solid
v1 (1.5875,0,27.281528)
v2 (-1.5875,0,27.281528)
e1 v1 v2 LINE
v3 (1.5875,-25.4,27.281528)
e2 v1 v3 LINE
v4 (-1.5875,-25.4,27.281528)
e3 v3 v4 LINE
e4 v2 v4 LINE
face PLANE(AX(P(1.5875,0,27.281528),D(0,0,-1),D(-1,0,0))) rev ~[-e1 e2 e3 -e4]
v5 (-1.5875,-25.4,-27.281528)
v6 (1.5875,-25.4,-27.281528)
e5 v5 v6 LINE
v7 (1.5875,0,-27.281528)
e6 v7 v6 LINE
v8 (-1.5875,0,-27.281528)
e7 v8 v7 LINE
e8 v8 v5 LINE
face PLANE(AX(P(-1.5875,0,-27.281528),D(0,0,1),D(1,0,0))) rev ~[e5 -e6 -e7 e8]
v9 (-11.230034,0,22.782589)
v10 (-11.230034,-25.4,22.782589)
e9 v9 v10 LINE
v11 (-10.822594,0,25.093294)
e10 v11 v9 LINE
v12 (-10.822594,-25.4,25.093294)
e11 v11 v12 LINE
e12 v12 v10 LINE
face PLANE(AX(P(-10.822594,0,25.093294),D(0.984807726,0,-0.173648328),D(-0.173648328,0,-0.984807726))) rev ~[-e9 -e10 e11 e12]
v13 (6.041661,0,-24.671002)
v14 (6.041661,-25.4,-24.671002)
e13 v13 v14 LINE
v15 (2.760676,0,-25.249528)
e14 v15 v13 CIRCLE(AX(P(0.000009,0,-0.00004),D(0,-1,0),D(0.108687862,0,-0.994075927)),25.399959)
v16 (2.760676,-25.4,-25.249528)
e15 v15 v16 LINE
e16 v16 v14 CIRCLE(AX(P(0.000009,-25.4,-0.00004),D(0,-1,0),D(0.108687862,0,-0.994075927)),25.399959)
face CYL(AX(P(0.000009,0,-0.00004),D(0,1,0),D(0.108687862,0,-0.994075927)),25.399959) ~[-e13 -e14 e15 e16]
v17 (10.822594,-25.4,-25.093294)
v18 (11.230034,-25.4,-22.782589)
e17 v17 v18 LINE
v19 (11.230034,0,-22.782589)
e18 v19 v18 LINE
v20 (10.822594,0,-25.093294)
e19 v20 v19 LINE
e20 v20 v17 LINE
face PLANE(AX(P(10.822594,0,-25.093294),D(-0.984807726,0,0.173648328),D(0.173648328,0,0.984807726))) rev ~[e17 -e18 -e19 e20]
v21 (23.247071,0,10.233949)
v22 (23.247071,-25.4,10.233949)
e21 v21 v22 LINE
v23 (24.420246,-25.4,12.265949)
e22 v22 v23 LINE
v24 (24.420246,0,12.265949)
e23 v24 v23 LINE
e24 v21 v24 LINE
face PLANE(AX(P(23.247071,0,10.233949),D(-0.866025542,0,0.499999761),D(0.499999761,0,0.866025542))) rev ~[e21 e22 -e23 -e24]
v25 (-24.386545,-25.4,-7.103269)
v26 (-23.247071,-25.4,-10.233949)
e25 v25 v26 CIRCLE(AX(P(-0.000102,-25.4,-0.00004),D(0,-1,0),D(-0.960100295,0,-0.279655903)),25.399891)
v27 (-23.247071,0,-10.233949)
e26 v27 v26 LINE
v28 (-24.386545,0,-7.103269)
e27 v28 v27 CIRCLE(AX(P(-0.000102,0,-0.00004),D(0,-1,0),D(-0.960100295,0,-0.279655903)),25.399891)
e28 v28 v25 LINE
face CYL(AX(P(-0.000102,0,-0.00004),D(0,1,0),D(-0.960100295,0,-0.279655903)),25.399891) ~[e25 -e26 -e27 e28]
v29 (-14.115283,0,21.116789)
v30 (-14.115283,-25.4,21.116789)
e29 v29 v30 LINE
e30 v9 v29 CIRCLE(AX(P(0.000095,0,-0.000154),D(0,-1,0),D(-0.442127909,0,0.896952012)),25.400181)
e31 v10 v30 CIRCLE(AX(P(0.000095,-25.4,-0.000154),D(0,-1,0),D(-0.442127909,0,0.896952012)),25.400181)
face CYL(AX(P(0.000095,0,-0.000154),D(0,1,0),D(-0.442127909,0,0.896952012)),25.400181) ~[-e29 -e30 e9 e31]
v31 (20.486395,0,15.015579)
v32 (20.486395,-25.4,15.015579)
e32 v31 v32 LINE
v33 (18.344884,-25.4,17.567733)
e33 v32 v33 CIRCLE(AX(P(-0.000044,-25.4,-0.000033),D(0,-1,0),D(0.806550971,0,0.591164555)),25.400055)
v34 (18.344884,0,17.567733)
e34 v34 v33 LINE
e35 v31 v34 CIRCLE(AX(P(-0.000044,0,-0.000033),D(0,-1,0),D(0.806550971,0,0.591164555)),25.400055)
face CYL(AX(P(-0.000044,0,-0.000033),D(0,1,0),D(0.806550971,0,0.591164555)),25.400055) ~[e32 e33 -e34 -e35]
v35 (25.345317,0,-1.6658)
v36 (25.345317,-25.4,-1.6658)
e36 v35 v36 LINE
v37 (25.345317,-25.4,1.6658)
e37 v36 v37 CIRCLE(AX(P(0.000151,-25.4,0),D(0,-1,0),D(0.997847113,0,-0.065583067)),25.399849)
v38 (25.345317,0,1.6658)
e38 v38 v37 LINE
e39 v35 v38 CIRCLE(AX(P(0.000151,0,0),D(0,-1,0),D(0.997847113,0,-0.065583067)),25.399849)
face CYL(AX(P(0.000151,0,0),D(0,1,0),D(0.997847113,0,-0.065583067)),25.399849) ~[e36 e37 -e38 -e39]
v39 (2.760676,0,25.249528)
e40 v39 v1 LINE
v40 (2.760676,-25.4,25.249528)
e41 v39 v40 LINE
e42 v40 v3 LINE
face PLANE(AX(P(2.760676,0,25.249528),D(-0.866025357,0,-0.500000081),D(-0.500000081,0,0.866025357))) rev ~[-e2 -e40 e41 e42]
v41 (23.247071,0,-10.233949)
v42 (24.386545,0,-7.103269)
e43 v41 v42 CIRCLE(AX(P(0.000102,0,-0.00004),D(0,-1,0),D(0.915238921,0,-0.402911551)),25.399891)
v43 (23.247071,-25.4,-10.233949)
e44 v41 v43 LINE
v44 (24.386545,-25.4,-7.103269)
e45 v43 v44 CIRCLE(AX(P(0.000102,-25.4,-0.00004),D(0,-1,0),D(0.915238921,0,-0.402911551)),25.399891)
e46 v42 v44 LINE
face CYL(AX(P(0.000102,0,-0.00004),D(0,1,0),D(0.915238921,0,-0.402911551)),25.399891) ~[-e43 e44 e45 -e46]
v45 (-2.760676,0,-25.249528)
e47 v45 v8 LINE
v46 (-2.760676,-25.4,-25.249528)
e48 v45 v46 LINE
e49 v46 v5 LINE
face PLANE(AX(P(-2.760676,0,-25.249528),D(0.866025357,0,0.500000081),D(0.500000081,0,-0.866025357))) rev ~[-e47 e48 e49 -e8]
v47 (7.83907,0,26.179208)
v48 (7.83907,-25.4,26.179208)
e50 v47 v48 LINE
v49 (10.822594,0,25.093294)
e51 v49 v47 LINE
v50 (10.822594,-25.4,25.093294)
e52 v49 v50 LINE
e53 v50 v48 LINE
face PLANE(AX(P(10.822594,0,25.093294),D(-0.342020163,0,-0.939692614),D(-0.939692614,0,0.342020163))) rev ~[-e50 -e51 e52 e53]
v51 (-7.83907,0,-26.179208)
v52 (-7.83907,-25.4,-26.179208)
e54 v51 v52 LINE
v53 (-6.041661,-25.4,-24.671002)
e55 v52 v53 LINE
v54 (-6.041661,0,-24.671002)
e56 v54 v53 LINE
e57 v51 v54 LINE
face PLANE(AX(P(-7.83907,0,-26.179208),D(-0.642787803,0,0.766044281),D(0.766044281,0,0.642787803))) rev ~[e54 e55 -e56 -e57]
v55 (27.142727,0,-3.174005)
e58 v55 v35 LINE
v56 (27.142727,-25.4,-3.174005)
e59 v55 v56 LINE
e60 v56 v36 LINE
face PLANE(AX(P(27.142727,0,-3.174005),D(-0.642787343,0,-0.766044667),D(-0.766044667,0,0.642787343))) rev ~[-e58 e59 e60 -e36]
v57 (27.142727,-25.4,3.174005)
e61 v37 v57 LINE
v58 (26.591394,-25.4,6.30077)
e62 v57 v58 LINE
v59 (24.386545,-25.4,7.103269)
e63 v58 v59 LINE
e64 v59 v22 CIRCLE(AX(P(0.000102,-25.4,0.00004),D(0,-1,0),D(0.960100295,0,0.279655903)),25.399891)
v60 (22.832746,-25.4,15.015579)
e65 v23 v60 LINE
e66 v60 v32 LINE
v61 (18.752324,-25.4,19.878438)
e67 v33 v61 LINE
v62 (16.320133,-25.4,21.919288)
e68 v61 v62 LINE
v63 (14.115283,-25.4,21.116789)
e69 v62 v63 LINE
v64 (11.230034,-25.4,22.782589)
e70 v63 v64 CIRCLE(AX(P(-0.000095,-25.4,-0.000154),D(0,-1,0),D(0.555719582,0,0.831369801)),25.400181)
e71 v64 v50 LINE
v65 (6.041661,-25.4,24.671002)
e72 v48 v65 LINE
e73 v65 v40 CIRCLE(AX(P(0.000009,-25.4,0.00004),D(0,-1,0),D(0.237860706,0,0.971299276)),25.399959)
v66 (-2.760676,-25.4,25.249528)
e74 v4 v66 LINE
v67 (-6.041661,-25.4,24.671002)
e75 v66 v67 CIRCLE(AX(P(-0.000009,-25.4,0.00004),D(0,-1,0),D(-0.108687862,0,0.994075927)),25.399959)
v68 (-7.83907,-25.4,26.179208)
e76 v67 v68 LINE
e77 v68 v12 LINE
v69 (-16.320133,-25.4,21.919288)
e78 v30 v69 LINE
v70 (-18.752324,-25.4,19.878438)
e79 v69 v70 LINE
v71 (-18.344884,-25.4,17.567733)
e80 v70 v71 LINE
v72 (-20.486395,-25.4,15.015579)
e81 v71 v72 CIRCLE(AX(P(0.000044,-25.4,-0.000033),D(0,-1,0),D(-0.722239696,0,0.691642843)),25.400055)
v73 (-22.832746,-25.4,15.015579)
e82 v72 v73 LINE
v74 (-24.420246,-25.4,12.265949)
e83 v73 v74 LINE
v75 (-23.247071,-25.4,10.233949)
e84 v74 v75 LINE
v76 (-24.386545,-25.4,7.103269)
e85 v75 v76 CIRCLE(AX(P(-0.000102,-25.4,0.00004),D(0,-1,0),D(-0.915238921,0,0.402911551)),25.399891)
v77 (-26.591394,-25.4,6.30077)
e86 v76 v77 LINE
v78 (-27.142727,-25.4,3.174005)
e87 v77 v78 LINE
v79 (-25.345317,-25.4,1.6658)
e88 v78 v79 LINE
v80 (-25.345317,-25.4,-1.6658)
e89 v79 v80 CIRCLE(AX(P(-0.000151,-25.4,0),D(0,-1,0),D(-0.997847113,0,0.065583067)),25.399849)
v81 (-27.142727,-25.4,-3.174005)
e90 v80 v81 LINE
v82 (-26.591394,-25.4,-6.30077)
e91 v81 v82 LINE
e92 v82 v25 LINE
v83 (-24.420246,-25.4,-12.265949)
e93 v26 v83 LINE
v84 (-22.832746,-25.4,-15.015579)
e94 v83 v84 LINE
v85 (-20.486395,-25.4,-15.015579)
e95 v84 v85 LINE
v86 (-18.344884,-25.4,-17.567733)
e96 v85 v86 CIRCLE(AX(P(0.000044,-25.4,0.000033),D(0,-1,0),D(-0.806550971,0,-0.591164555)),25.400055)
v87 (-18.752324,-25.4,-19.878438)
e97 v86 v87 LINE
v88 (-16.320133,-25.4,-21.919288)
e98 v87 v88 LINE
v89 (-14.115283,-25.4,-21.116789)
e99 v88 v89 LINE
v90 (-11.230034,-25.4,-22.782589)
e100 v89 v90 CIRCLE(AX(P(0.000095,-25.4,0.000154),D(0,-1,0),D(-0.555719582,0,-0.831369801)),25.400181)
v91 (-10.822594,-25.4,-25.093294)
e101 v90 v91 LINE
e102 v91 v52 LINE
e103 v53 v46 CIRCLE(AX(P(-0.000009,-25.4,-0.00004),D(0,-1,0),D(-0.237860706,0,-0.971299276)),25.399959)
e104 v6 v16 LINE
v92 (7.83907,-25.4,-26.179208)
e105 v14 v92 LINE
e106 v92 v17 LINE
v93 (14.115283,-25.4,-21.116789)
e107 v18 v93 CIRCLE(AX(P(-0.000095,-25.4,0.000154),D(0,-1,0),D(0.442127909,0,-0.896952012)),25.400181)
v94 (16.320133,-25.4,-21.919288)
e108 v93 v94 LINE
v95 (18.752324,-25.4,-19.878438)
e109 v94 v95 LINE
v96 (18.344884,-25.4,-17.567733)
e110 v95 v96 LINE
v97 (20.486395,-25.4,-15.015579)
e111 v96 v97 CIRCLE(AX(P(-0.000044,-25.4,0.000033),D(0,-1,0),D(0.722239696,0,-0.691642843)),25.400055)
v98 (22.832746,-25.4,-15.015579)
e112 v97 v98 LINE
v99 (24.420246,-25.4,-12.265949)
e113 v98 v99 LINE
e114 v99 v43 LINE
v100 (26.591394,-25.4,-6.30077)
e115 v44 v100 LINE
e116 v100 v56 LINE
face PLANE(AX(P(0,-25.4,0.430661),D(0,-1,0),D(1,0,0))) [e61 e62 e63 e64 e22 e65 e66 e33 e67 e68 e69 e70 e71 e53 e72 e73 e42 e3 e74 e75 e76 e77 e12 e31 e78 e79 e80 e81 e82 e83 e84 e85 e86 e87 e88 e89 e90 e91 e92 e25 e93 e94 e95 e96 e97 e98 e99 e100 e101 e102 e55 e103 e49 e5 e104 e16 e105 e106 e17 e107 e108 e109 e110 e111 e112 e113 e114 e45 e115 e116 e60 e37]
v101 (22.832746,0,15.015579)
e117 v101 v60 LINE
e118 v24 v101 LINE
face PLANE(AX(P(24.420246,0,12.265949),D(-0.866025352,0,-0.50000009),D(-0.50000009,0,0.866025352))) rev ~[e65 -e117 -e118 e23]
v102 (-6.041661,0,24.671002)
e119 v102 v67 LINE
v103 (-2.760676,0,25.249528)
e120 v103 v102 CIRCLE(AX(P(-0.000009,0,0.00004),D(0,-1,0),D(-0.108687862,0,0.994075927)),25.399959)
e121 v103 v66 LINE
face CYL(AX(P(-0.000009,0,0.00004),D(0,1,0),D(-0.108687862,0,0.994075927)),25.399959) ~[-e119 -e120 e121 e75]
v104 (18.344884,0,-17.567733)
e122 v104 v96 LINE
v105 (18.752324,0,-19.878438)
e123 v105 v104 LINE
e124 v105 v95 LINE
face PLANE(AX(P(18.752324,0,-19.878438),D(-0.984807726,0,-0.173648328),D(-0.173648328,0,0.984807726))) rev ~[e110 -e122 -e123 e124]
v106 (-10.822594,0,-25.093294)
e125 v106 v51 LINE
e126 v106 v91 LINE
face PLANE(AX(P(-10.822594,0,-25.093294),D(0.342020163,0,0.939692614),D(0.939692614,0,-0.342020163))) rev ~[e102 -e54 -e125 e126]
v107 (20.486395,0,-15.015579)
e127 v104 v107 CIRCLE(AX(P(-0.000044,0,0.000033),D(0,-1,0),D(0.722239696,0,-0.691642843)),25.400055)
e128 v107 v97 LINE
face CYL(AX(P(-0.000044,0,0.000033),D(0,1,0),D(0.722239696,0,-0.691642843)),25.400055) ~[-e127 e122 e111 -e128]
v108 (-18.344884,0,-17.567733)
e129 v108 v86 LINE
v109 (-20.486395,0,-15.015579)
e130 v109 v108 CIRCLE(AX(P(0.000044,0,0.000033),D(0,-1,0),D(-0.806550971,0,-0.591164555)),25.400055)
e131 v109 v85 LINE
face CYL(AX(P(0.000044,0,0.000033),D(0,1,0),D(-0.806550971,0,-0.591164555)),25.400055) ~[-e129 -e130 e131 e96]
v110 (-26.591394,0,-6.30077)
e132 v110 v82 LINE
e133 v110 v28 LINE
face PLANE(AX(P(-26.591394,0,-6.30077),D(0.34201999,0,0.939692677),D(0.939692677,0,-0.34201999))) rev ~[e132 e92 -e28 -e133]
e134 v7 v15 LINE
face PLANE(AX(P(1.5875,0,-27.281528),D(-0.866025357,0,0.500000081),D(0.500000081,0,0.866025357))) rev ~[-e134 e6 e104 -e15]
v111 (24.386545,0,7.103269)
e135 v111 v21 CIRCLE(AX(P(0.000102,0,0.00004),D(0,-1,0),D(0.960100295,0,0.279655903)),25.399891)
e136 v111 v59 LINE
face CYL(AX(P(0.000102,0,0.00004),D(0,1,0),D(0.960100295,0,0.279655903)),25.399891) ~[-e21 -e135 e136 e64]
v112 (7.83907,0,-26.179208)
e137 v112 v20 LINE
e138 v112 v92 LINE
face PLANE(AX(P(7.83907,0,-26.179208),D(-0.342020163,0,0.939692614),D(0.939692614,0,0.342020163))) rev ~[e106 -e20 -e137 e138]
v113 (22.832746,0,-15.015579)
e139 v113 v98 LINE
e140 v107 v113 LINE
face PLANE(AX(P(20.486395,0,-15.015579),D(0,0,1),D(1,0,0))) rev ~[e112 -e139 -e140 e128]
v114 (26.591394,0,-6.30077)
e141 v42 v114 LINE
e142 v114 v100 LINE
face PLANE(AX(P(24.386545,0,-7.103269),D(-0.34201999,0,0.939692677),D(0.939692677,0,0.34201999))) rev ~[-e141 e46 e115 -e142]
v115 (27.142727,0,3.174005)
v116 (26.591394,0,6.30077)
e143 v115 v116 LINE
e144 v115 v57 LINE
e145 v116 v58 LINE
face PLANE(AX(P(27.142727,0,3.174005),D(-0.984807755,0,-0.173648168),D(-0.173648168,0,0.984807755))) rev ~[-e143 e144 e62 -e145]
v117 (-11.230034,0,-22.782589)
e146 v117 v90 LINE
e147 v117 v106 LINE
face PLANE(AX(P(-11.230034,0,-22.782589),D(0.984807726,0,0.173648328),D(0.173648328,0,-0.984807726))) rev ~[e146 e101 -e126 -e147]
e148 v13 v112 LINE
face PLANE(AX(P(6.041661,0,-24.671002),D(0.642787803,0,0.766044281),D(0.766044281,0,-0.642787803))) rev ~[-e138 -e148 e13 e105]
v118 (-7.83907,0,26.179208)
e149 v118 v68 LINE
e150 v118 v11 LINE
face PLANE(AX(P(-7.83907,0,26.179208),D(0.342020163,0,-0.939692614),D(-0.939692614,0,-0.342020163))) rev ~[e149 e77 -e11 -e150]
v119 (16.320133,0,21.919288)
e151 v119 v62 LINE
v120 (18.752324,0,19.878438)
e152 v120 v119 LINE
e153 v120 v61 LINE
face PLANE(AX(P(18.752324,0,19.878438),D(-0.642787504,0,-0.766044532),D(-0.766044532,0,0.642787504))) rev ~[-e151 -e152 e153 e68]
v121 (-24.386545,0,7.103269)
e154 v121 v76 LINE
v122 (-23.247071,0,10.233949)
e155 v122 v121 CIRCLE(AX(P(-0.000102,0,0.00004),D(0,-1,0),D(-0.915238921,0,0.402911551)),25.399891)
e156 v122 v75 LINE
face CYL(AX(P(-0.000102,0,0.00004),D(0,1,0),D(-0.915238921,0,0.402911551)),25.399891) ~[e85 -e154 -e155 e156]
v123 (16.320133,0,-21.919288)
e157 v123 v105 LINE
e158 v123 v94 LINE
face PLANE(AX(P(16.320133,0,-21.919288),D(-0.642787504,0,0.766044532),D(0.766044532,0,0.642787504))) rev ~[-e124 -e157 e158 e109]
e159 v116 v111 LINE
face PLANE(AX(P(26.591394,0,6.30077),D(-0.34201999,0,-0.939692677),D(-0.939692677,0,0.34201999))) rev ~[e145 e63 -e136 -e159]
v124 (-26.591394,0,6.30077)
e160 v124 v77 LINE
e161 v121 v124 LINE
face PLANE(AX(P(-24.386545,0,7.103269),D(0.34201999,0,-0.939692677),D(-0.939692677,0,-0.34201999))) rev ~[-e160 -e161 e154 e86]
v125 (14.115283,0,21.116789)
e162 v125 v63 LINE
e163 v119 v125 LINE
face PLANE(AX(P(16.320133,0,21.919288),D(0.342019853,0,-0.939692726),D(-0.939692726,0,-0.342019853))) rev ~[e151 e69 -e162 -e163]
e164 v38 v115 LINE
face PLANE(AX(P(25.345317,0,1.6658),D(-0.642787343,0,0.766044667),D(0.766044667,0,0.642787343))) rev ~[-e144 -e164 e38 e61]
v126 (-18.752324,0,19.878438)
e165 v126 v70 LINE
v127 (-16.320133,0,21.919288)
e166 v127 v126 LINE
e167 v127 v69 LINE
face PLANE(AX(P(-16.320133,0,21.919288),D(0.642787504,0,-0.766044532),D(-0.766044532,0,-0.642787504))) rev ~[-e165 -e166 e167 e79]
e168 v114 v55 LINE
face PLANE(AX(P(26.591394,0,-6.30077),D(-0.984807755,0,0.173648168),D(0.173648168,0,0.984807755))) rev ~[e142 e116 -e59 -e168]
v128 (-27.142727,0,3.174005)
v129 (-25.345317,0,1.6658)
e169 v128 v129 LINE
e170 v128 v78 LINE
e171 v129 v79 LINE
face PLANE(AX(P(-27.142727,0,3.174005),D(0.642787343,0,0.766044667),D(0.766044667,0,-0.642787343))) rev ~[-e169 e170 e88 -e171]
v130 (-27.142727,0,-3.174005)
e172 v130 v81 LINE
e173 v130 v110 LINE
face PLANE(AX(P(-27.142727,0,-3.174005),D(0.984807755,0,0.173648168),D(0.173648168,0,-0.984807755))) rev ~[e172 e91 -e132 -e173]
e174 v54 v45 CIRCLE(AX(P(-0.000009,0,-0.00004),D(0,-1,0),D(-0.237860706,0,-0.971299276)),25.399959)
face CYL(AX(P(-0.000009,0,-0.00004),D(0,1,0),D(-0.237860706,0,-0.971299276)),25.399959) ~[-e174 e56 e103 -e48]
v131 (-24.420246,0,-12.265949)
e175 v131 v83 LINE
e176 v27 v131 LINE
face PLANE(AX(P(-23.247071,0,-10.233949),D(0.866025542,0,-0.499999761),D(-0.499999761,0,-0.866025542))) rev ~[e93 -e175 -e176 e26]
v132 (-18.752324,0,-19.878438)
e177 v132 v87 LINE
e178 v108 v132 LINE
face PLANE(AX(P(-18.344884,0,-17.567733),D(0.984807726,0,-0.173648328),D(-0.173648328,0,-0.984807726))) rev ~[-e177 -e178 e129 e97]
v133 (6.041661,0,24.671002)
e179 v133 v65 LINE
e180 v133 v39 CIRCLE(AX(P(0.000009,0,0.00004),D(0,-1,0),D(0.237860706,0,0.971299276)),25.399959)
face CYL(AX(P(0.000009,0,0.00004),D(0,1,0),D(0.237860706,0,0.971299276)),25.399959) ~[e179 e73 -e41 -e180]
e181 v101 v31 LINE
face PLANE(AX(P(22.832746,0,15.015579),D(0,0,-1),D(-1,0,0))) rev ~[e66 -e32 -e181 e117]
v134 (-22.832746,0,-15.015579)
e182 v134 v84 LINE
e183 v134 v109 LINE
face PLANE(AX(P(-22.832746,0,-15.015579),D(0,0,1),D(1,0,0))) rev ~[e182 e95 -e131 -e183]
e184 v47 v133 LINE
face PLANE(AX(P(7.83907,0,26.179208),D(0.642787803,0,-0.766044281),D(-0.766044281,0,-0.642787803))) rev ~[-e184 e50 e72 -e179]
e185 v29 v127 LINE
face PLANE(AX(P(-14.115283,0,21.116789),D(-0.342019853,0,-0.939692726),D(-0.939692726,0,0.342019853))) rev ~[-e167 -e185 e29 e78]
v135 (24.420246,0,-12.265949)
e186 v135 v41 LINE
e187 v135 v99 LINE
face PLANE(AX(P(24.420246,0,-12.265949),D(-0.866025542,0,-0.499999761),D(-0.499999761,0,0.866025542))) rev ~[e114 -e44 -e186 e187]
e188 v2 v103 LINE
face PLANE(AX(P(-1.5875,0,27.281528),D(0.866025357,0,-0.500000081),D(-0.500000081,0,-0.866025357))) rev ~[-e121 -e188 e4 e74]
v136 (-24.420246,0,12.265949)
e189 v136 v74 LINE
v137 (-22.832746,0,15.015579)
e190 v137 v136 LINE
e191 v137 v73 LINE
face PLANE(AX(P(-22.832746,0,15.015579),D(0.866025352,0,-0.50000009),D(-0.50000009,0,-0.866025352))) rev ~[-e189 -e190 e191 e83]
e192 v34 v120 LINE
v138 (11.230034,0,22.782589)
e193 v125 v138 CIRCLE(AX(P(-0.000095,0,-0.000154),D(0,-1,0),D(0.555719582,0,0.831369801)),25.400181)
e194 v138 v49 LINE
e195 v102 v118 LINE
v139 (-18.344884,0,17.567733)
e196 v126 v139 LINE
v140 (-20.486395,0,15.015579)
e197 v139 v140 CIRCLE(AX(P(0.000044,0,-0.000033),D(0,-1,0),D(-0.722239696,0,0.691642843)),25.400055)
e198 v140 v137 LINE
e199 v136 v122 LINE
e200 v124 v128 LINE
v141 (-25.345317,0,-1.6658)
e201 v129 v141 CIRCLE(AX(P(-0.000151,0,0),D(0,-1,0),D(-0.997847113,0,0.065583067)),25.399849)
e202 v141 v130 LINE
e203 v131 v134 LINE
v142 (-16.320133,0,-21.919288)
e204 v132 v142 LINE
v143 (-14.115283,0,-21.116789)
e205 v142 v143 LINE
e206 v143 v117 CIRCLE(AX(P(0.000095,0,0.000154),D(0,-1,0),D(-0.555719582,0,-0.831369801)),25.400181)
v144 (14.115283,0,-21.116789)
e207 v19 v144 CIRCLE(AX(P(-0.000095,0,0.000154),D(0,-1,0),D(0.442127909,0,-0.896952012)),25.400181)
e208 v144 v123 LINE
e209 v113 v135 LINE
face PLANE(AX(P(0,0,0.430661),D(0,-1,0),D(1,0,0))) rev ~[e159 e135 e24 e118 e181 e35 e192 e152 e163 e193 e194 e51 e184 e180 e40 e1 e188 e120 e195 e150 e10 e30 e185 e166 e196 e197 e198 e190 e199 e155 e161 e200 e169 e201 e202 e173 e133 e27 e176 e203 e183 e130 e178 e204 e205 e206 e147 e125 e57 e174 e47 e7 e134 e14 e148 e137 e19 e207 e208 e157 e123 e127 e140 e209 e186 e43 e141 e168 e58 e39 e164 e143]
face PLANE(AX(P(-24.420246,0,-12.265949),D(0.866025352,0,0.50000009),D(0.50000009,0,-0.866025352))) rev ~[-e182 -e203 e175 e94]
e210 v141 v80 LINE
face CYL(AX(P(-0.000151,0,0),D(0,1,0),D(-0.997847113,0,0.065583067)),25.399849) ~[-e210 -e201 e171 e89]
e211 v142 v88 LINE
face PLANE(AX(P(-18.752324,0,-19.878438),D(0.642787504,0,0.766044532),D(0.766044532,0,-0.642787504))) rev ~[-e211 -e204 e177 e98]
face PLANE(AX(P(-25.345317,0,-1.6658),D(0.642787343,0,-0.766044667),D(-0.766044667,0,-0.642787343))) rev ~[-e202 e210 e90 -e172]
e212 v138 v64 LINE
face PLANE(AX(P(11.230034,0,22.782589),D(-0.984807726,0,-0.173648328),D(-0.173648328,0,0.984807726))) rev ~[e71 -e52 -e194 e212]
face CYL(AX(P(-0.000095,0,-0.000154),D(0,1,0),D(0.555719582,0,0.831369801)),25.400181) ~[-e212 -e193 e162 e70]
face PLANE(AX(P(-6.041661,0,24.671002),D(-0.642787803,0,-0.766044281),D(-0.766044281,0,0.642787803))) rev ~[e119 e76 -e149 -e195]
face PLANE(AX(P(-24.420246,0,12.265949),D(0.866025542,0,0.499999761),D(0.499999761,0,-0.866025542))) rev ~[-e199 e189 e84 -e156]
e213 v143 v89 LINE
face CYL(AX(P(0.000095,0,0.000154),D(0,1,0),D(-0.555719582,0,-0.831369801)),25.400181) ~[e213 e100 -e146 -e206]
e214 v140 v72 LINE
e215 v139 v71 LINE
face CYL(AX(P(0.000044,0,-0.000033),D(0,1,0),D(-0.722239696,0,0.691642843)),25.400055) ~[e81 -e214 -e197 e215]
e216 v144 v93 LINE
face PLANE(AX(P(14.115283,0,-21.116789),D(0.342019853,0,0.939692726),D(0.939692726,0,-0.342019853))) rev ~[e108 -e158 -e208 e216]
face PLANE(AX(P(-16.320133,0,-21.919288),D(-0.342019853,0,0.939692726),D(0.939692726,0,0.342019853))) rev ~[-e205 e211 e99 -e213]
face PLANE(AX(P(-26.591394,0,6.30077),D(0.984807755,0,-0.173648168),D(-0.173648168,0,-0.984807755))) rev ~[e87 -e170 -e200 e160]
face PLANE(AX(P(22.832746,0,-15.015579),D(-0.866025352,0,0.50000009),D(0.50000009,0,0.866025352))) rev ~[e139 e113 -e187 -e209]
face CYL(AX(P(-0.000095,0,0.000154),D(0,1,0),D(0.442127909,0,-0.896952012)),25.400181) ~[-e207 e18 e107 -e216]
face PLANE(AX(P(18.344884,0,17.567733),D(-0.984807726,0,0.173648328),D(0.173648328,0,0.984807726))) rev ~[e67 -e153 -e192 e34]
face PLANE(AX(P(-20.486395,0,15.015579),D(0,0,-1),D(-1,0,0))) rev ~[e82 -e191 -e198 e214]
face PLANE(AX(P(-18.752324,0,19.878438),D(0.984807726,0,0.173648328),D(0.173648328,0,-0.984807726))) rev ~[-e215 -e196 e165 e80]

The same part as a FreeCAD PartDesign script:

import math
import FreeCAD as App
import Part
import Sketcher
from FreeCAD import Vector
Q = App.Units.Quantity

doc = App.newDocument("Part")
body = doc.addObject("PartDesign::Body", "Body")

# Sketch on XZ plane
sketch1 = body.newObject("Sketcher::SketchObject", "Sketch")
sketch1.AttachmentSupport = (doc.getObject("XZ_Plane"), [""])
sketch1.MapMode = "FlatFace"
sketch1.addGeometry([
    Part.LineSegment(Vector(-1.5875, 27.281528, 0), Vector(-2.760676, 25.249528, 0)),  # 0
    Part.ArcOfCircle(Part.Circle(Vector(-0.000009, 0.00004, 0), Vector(0, 0, 1), 25.399959), math.radians(96.239682), math.radians(103.760312)),  # 1
    Part.LineSegment(Vector(-6.041661, 24.671002, 0), Vector(-7.83907, 26.179208, 0)),  # 2
    Part.LineSegment(Vector(-7.83907, 26.179208, 0), Vector(-10.822594, 25.093294, 0)),  # 3
    Part.LineSegment(Vector(-10.822594, 25.093294, 0), Vector(-11.230034, 22.782589, 0)),  # 4
    Part.ArcOfCircle(Part.Circle(Vector(0.000095, -0.000154, 0), Vector(0, 0, 1), 25.400181), math.radians(116.239729), math.radians(123.760292)),  # 5
    Part.LineSegment(Vector(-14.115283, 21.116789, 0), Vector(-16.320133, 21.919288, 0)),  # 6
    Part.LineSegment(Vector(-16.320133, 21.919288, 0), Vector(-18.752324, 19.878438, 0)),  # 7
    Part.LineSegment(Vector(-18.752324, 19.878438, 0), Vector(-18.344884, 17.567733, 0)),  # 8
    Part.ArcOfCircle(Part.Circle(Vector(0.000044, -0.000033, 0), Vector(0, 0, 1), 25.400055), math.radians(136.239705), math.radians(143.760308)),  # 9
    Part.LineSegment(Vector(-20.486395, 15.015579, 0), Vector(-22.832746, 15.015579, 0)),  # 10
    Part.LineSegment(Vector(-22.832746, 15.015579, 0), Vector(-24.420246, 12.265949, 0)),  # 11
    Part.LineSegment(Vector(-24.420246, 12.265949, 0), Vector(-23.247071, 10.233949, 0)),  # 12
    Part.ArcOfCircle(Part.Circle(Vector(-0.000102, 0.00004, 0), Vector(0, 0, 1), 25.399891), math.radians(156.23968), math.radians(163.760331)),  # 13
    Part.LineSegment(Vector(-24.386545, 7.103269, 0), Vector(-26.591394, 6.30077, 0)),  # 14
    Part.LineSegment(Vector(-26.591394, 6.30077, 0), Vector(-27.142727, 3.174005, 0)),  # 15
    Part.LineSegment(Vector(-27.142727, 3.174005, 0), Vector(-25.345317, 1.6658, 0)),  # 16
    Part.ArcOfCircle(Part.Circle(Vector(-0.000151, 0, 0), Vector(0, 0, 1), 25.399849), math.radians(176.239668), math.radians(183.760332)),  # 17
    Part.LineSegment(Vector(-25.345317, -1.6658, 0), Vector(-27.142727, -3.174005, 0)),  # 18
    Part.LineSegment(Vector(-27.142727, -3.174005, 0), Vector(-26.591394, -6.30077, 0)),  # 19
    Part.LineSegment(Vector(-26.591394, -6.30077, 0), Vector(-24.386545, -7.103269, 0)),  # 20
    Part.ArcOfCircle(Part.Circle(Vector(-0.000102, -0.00004, 0), Vector(0, 0, 1), 25.399891), math.radians(-163.760331), math.radians(-156.23968)),  # 21
    Part.LineSegment(Vector(-23.247071, -10.233949, 0), Vector(-24.420246, -12.265949, 0)),  # 22
    Part.LineSegment(Vector(-24.420246, -12.265949, 0), Vector(-22.832746, -15.015579, 0)),  # 23
    Part.LineSegment(Vector(-22.832746, -15.015579, 0), Vector(-20.486395, -15.015579, 0)),  # 24
    Part.ArcOfCircle(Part.Circle(Vector(0.000044, 0.000033, 0), Vector(0, 0, 1), 25.400055), math.radians(-143.760308), math.radians(-136.239705)),  # 25
    Part.LineSegment(Vector(-18.344884, -17.567733, 0), Vector(-18.752324, -19.878438, 0)),  # 26
    Part.LineSegment(Vector(-18.752324, -19.878438, 0), Vector(-16.320133, -21.919288, 0)),  # 27
    Part.LineSegment(Vector(-16.320133, -21.919288, 0), Vector(-14.115283, -21.116789, 0)),  # 28
    Part.ArcOfCircle(Part.Circle(Vector(0.000095, 0.000154, 0), Vector(0, 0, 1), 25.400181), math.radians(-123.760292), math.radians(-116.239729)),  # 29
    Part.LineSegment(Vector(-11.230034, -22.782589, 0), Vector(-10.822594, -25.093294, 0)),  # 30
    Part.LineSegment(Vector(-10.822594, -25.093294, 0), Vector(-7.83907, -26.179208, 0)),  # 31
    Part.LineSegment(Vector(-7.83907, -26.179208, 0), Vector(-6.041661, -24.671002, 0)),  # 32
    Part.ArcOfCircle(Part.Circle(Vector(-0.000009, -0.00004, 0), Vector(0, 0, 1), 25.399959), math.radians(-103.760312), math.radians(-96.239682)),  # 33
    Part.LineSegment(Vector(-2.760676, -25.249528, 0), Vector(-1.5875, -27.281528, 0)),  # 34
    Part.LineSegment(Vector(-1.5875, -27.281528, 0), Vector(1.5875, -27.281528, 0)),  # 35
    Part.LineSegment(Vector(1.5875, -27.281528, 0), Vector(2.760676, -25.249528, 0)),  # 36
    Part.ArcOfCircle(Part.Circle(Vector(0.000009, -0.00004, 0), Vector(0, 0, 1), 25.399959), math.radians(-83.760318), math.radians(-76.239688)),  # 37
    Part.LineSegment(Vector(6.041661, -24.671002, 0), Vector(7.83907, -26.179208, 0)),  # 38
    Part.LineSegment(Vector(7.83907, -26.179208, 0), Vector(10.822594, -25.093294, 0)),  # 39
    Part.LineSegment(Vector(10.822594, -25.093294, 0), Vector(11.230034, -22.782589, 0)),  # 40
    Part.ArcOfCircle(Part.Circle(Vector(-0.000095, 0.000154, 0), Vector(0, 0, 1), 25.400181), math.radians(-63.760271), math.radians(-56.239708)),  # 41
    Part.LineSegment(Vector(14.115283, -21.116789, 0), Vector(16.320133, -21.919288, 0)),  # 42
    Part.LineSegment(Vector(16.320133, -21.919288, 0), Vector(18.752324, -19.878438, 0)),  # 43
    Part.LineSegment(Vector(18.752324, -19.878438, 0), Vector(18.344884, -17.567733, 0)),  # 44
    Part.ArcOfCircle(Part.Circle(Vector(-0.000044, 0.000033, 0), Vector(0, 0, 1), 25.400055), math.radians(-43.760295), math.radians(-36.239692)),  # 45
    Part.LineSegment(Vector(20.486395, -15.015579, 0), Vector(22.832746, -15.015579, 0)),  # 46
    Part.LineSegment(Vector(22.832746, -15.015579, 0), Vector(24.420246, -12.265949, 0)),  # 47
    Part.LineSegment(Vector(24.420246, -12.265949, 0), Vector(23.247071, -10.233949, 0)),  # 48
    Part.ArcOfCircle(Part.Circle(Vector(0.000102, -0.00004, 0), Vector(0, 0, 1), 25.399891), math.radians(-23.76032), math.radians(-16.239669)),  # 49
    Part.LineSegment(Vector(24.386545, -7.103269, 0), Vector(26.591394, -6.30077, 0)),  # 50
    Part.LineSegment(Vector(26.591394, -6.30077, 0), Vector(27.142727, -3.174005, 0)),  # 51
    Part.LineSegment(Vector(27.142727, -3.174005, 0), Vector(25.345317, -1.6658, 0)),  # 52
    Part.ArcOfCircle(Part.Circle(Vector(0.000151, 0, 0), Vector(0, 0, 1), 25.399849), math.radians(-3.760332), math.radians(3.760332)),  # 53
    Part.LineSegment(Vector(25.345317, 1.6658, 0), Vector(27.142727, 3.174005, 0)),  # 54
    Part.LineSegment(Vector(27.142727, 3.174005, 0), Vector(26.591394, 6.30077, 0)),  # 55
    Part.LineSegment(Vector(26.591394, 6.30077, 0), Vector(24.386545, 7.103269, 0)),  # 56
    Part.ArcOfCircle(Part.Circle(Vector(0.000102, 0.00004, 0), Vector(0, 0, 1), 25.399891), math.radians(16.239669), math.radians(23.76032)),  # 57
    Part.LineSegment(Vector(23.247071, 10.233949, 0), Vector(24.420246, 12.265949, 0)),  # 58
    Part.LineSegment(Vector(24.420246, 12.265949, 0), Vector(22.832746, 15.015579, 0)),  # 59
    Part.LineSegment(Vector(22.832746, 15.015579, 0), Vector(20.486395, 15.015579, 0)),  # 60
    Part.ArcOfCircle(Part.Circle(Vector(-0.000044, -0.000033, 0), Vector(0, 0, 1), 25.400055), math.radians(36.239692), math.radians(43.760295)),  # 61
    Part.LineSegment(Vector(18.344884, 17.567733, 0), Vector(18.752324, 19.878438, 0)),  # 62
    Part.LineSegment(Vector(18.752324, 19.878438, 0), Vector(16.320133, 21.919288, 0)),  # 63
    Part.LineSegment(Vector(16.320133, 21.919288, 0), Vector(14.115283, 21.116789, 0)),  # 64
    Part.ArcOfCircle(Part.Circle(Vector(-0.000095, -0.000154, 0), Vector(0, 0, 1), 25.400181), math.radians(56.239708), math.radians(63.760271)),  # 65
    Part.LineSegment(Vector(11.230034, 22.782589, 0), Vector(10.822594, 25.093294, 0)),  # 66
    Part.LineSegment(Vector(10.822594, 25.093294, 0), Vector(7.83907, 26.179208, 0)),  # 67
    Part.LineSegment(Vector(7.83907, 26.179208, 0), Vector(6.041661, 24.671002, 0)),  # 68
    Part.ArcOfCircle(Part.Circle(Vector(0.000009, 0.00004, 0), Vector(0, 0, 1), 25.399959), math.radians(76.239688), math.radians(83.760318)),  # 69
    Part.LineSegment(Vector(2.760676, 25.249528, 0), Vector(1.5875, 27.281528, 0)),  # 70
    Part.LineSegment(Vector(1.5875, 27.281528, 0), Vector(-1.5875, 27.281528, 0)),  # 71
], False)
sketch1.addConstraint([
    Sketcher.Constraint("Coincident", 0, 2, 1, 1),
    Sketcher.Constraint("Coincident", 1, 2, 2, 1),
    Sketcher.Constraint("Coincident", 2, 2, 3, 1),
    Sketcher.Constraint("Coincident", 3, 2, 4, 1),
    Sketcher.Constraint("Coincident", 4, 2, 5, 1),
    Sketcher.Constraint("Coincident", 5, 2, 6, 1),
    Sketcher.Constraint("Coincident", 6, 2, 7, 1),
    Sketcher.Constraint("Coincident", 7, 2, 8, 1),
    Sketcher.Constraint("Coincident", 8, 2, 9, 1),
    Sketcher.Constraint("Coincident", 9, 2, 10, 1),
    Sketcher.Constraint("Coincident", 10, 2, 11, 1),
    Sketcher.Constraint("Coincident", 11, 2, 12, 1),
    Sketcher.Constraint("Coincident", 12, 2, 13, 1),
    Sketcher.Constraint("Coincident", 13, 2, 14, 1),
    Sketcher.Constraint("Coincident", 14, 2, 15, 1),
    Sketcher.Constraint("Coincident", 15, 2, 16, 1),
    Sketcher.Constraint("Coincident", 16, 2, 17, 1),
    Sketcher.Constraint("Coincident", 17, 2, 18, 1),
    Sketcher.Constraint("Coincident", 18, 2, 19, 1),
    Sketcher.Constraint("Coincident", 19, 2, 20, 1),
    Sketcher.Constraint("Coincident", 20, 2, 21, 1),
    Sketcher.Constraint("Coincident", 21, 2, 22, 1),
    Sketcher.Constraint("Coincident", 22, 2, 23, 1),
    Sketcher.Constraint("Coincident", 23, 2, 24, 1),
    Sketcher.Constraint("Coincident", 24, 2, 25, 1),
    Sketcher.Constraint("Coincident", 25, 2, 26, 1),
    Sketcher.Constraint("Coincident", 26, 2, 27, 1),
    Sketcher.Constraint("Coincident", 27, 2, 28, 1),
    Sketcher.Constraint("Coincident", 28, 2, 29, 1),
    Sketcher.Constraint("Coincident", 29, 2, 30, 1),
    Sketcher.Constraint("Coincident", 30, 2, 31, 1),
    Sketcher.Constraint("Coincident", 31, 2, 32, 1),
    Sketcher.Constraint("Coincident", 32, 2, 33, 1),
    Sketcher.Constraint("Coincident", 33, 2, 34, 1),
    Sketcher.Constraint("Coincident", 34, 2, 35, 1),
    Sketcher.Constraint("Coincident", 35, 2, 36, 1),
    Sketcher.Constraint("Coincident", 36, 2, 37, 1),
    Sketcher.Constraint("Coincident", 37, 2, 38, 1),
    Sketcher.Constraint("Coincident", 38, 2, 39, 1),
    Sketcher.Constraint("Coincident", 39, 2, 40, 1),
    Sketcher.Constraint("Coincident", 40, 2, 41, 1),
    Sketcher.Constraint("Coincident", 41, 2, 42, 1),
    Sketcher.Constraint("Coincident", 42, 2, 43, 1),
    Sketcher.Constraint("Coincident", 43, 2, 44, 1),
    Sketcher.Constraint("Coincident", 44, 2, 45, 1),
    Sketcher.Constraint("Coincident", 45, 2, 46, 1),
    Sketcher.Constraint("Coincident", 46, 2, 47, 1),
    Sketcher.Constraint("Coincident", 47, 2, 48, 1),
    Sketcher.Constraint("Coincident", 48, 2, 49, 1),
    Sketcher.Constraint("Coincident", 49, 2, 50, 1),
    Sketcher.Constraint("Coincident", 50, 2, 51, 1),
    Sketcher.Constraint("Coincident", 51, 2, 52, 1),
    Sketcher.Constraint("Coincident", 52, 2, 53, 1),
    Sketcher.Constraint("Coincident", 53, 2, 54, 1),
    Sketcher.Constraint("Coincident", 54, 2, 55, 1),
    Sketcher.Constraint("Coincident", 55, 2, 56, 1),
    Sketcher.Constraint("Coincident", 56, 2, 57, 1),
    Sketcher.Constraint("Coincident", 57, 2, 58, 1),
    Sketcher.Constraint("Coincident", 58, 2, 59, 1),
    Sketcher.Constraint("Coincident", 59, 2, 60, 1),
    Sketcher.Constraint("Coincident", 60, 2, 61, 1),
    Sketcher.Constraint("Coincident", 61, 2, 62, 1),
    Sketcher.Constraint("Coincident", 62, 2, 63, 1),
    Sketcher.Constraint("Coincident", 63, 2, 64, 1),
    Sketcher.Constraint("Coincident", 64, 2, 65, 1),
    Sketcher.Constraint("Coincident", 65, 2, 66, 1),
    Sketcher.Constraint("Coincident", 66, 2, 67, 1),
    Sketcher.Constraint("Coincident", 67, 2, 68, 1),
    Sketcher.Constraint("Coincident", 68, 2, 69, 1),
    Sketcher.Constraint("Coincident", 69, 2, 70, 1),
    Sketcher.Constraint("Coincident", 70, 2, 71, 1),
    Sketcher.Constraint("Coincident", 71, 2, 0, 1),
    Sketcher.Constraint("Horizontal", 10),
    Sketcher.Constraint("Horizontal", 24),
    Sketcher.Constraint("Horizontal", 35),
    Sketcher.Constraint("Horizontal", 46),
    Sketcher.Constraint("Horizontal", 60),
    Sketcher.Constraint("Horizontal", 71),
    Sketcher.Constraint("PointOnObject", 17, 3, -1),
    Sketcher.Constraint("PointOnObject", 53, 3, -1),
    Sketcher.Constraint("DistanceX", 35, 1, 35, 2, Q("0.125 in")),
    Sketcher.Constraint("DistanceX", 71, 2, 71, 1, Q("0.125 in")),
    Sketcher.Constraint("Distance", 3, Q("0.125 in")),
    Sketcher.Constraint("Distance", 7, Q("0.125 in")),
    Sketcher.Constraint("Distance", 11, Q("0.125 in")),
    Sketcher.Constraint("Distance", 15, Q("0.125 in")),
    Sketcher.Constraint("Distance", 19, Q("0.125 in")),
    Sketcher.Constraint("Distance", 23, Q("0.125 in")),
    Sketcher.Constraint("Distance", 27, Q("0.125 in")),
    Sketcher.Constraint("Distance", 31, Q("0.125 in")),
    Sketcher.Constraint("Distance", 39, Q("0.125 in")),
    Sketcher.Constraint("Distance", 43, Q("0.125 in")),
    Sketcher.Constraint("Distance", 47, Q("0.125 in")),
    Sketcher.Constraint("Distance", 51, Q("0.125 in")),
    Sketcher.Constraint("Distance", 55, Q("0.125 in")),
    Sketcher.Constraint("Distance", 59, Q("0.125 in")),
    Sketcher.Constraint("Distance", 63, Q("0.125 in")),
    Sketcher.Constraint("Distance", 67, Q("0.125 in")),
    Sketcher.Constraint("DistanceX", 34, 2, -1, 1, Q("0.0625 in")),
    Sketcher.Constraint("DistanceX", -1, 1, 70, 2, Q("0.0625 in")),
    Sketcher.Constraint("Radius", 1, 25.399959),
    Sketcher.Constraint("Radius", 5, 25.400181),
    Sketcher.Constraint("Radius", 13, 25.399891),
    Sketcher.Constraint("Radius", 17, 25.399849),
    Sketcher.Constraint("Radius", 21, 25.399891),
    Sketcher.Constraint("Radius", 29, 25.400181),
    Sketcher.Constraint("Radius", 33, 25.399959),
    Sketcher.Constraint("Radius", 37, 25.399959),
    Sketcher.Constraint("Radius", 41, 25.400181),
    Sketcher.Constraint("Radius", 49, 25.399891),
    Sketcher.Constraint("Radius", 53, 25.399849),
    Sketcher.Constraint("Radius", 57, 25.399891),
    Sketcher.Constraint("Radius", 65, 25.400181),
    Sketcher.Constraint("Radius", 69, 25.399959),
    Sketcher.Constraint("DistanceX", 13, 2, -1, 1, Q("0.9601002 in")),
    Sketcher.Constraint("DistanceX", 20, 2, -1, 1, Q("0.9601002 in")),
    Sketcher.Constraint("DistanceX", -1, 1, 49, 2, Q("0.9601002 in")),
    Sketcher.Constraint("DistanceX", -1, 1, 56, 2, Q("0.9601002 in")),
    Sketcher.Constraint("Radius", 9, 25.400055),
    Sketcher.Constraint("Radius", 25, 25.400055),
    Sketcher.Constraint("Radius", 45, 25.400055),
    Sketcher.Constraint("Radius", 61, 25.400055),
    Sketcher.Constraint("DistanceX", 10, 2, 10, 1, 2.346351),
    Sketcher.Constraint("DistanceX", 24, 1, 24, 2, 2.346351),
    Sketcher.Constraint("DistanceX", 46, 1, 46, 2, 2.346351),
    Sketcher.Constraint("DistanceX", 60, 2, 60, 1, 2.346351),
    Sketcher.Constraint("DistanceY", -1, 1, 1, 2, 24.671002),
    Sketcher.Constraint("DistanceY", -1, 1, 16, 2, 1.6658),
    Sketcher.Constraint("DistanceY", 17, 2, -1, 1, 1.6658),
    Sketcher.Constraint("DistanceY", 37, 2, -1, 1, 24.671002),
    Sketcher.Constraint("DistanceY", 52, 2, -1, 1, 1.6658),
    Sketcher.Constraint("DistanceY", -1, 1, 53, 2, 1.6658),
    Sketcher.Constraint("Distance", 0, 2.346352),
    Sketcher.Constraint("Distance", 2, 2.346351),
    Sketcher.Constraint("Distance", 4, 2.346351),
    Sketcher.Constraint("Distance", 8, 2.346351),
    Sketcher.Constraint("Distance", 12, 2.346351),
    Sketcher.Constraint("Distance", 14, 2.346351),
    Sketcher.Constraint("Distance", 16, 2.346351),
    Sketcher.Constraint("Distance", 18, 2.346351),
    Sketcher.Constraint("Distance", 20, 2.346351),
    Sketcher.Constraint("Distance", 22, 2.346351),
    Sketcher.Constraint("Distance", 26, 2.346351),
    Sketcher.Constraint("Distance", 30, 2.346351),
    Sketcher.Constraint("Distance", 32, 2.346351),
    Sketcher.Constraint("Distance", 34, 2.346352),
    Sketcher.Constraint("Distance", 36, 2.346352),
    Sketcher.Constraint("Distance", 38, 2.346351),
    Sketcher.Constraint("Distance", 40, 2.346351),
    Sketcher.Constraint("Distance", 44, 2.346351),
    Sketcher.Constraint("Distance", 48, 2.346351),
    Sketcher.Constraint("Distance", 50, 2.346351),
    Sketcher.Constraint("Distance", 52, 2.346351),
    Sketcher.Constraint("Distance", 54, 2.346351),
    Sketcher.Constraint("Distance", 56, 2.346351),
    Sketcher.Constraint("Distance", 58, 2.346351),
    Sketcher.Constraint("Distance", 62, 2.346351),
    Sketcher.Constraint("Distance", 66, 2.346351),
    Sketcher.Constraint("Distance", 68, 2.346351),
    Sketcher.Constraint("Distance", 70, 2.346352),
    Sketcher.Constraint("DistanceX", 17, 3, -1, 1, 0.000151),
    Sketcher.Constraint("DistanceX", -1, 1, 53, 3, 0.000151),
    Sketcher.Constraint("DistanceY", -1, 1, 0, 2, 25.249528),
    Sketcher.Constraint("DistanceX", 1, 2, -1, 1, 6.041661),
    Sketcher.Constraint("DistanceX", 2, 2, -1, 1, 7.83907),
    Sketcher.Constraint("DistanceY", -1, 1, 4, 2, 22.782589),
    Sketcher.Constraint("DistanceY", -1, 1, 5, 2, 21.116789),
    Sketcher.Constraint("DistanceY", -1, 1, 6, 2, 21.919288),
    Sketcher.Constraint("DistanceY", -1, 1, 9, 2, 15.015579),
    Sketcher.Constraint("DistanceY", -1, 1, 11, 2, 12.265949),
    Sketcher.Constraint("DistanceX", 12, 2, -1, 1, 23.247071),
    Sketcher.Constraint("DistanceY", -1, 1, 12, 2, 10.233949),
    Sketcher.Constraint("DistanceY", -1, 1, 13, 2, 7.103269),
    Sketcher.Constraint("DistanceY", -1, 1, 14, 2, 6.30077),
    Sketcher.Constraint("DistanceY", 19, 2, -1, 1, 6.30077),
    Sketcher.Constraint("DistanceY", 20, 2, -1, 1, 7.103269),
    Sketcher.Constraint("DistanceX", 21, 2, -1, 1, 23.247071),
    Sketcher.Constraint("DistanceY", 21, 2, -1, 1, 10.233949),
    Sketcher.Constraint("DistanceY", 22, 2, -1, 1, 12.265949),
    Sketcher.Constraint("DistanceY", 23, 2, -1, 1, 15.015579),
    Sketcher.Constraint("DistanceY", 27, 2, -1, 1, 21.919288),
    Sketcher.Constraint("DistanceY", 28, 2, -1, 1, 21.116789),
    Sketcher.Constraint("DistanceY", 29, 2, -1, 1, 22.782589),
    Sketcher.Constraint("DistanceX", 31, 2, -1, 1, 7.83907),
    Sketcher.Constraint("DistanceX", 32, 2, -1, 1, 6.041661),
    Sketcher.Constraint("DistanceY", 34, 2, -1, 1, 27.281528),
    Sketcher.Constraint("DistanceY", 36, 2, -1, 1, 25.249528),
    Sketcher.Constraint("DistanceX", -1, 1, 37, 2, 6.041661),
    Sketcher.Constraint("DistanceX", -1, 1, 38, 2, 7.83907),
    Sketcher.Constraint("DistanceY", 40, 2, -1, 1, 22.782589),
    Sketcher.Constraint("DistanceY", 41, 2, -1, 1, 21.116789),
    Sketcher.Constraint("DistanceY", 42, 2, -1, 1, 21.919288),
    Sketcher.Constraint("DistanceY", 45, 2, -1, 1, 15.015579),
    Sketcher.Constraint("DistanceY", 47, 2, -1, 1, 12.265949),
    Sketcher.Constraint("DistanceX", -1, 1, 48, 2, 23.247071),
    Sketcher.Constraint("DistanceY", 48, 2, -1, 1, 10.233949),
    Sketcher.Constraint("DistanceY", 49, 2, -1, 1, 7.103269),
    Sketcher.Constraint("DistanceY", 50, 2, -1, 1, 6.30077),
    Sketcher.Constraint("DistanceY", -1, 1, 55, 2, 6.30077),
    Sketcher.Constraint("DistanceY", -1, 1, 56, 2, 7.103269),
    Sketcher.Constraint("DistanceX", -1, 1, 57, 2, 23.247071),
    Sketcher.Constraint("DistanceY", -1, 1, 57, 2, 10.233949),
    Sketcher.Constraint("DistanceY", -1, 1, 58, 2, 12.265949),
    Sketcher.Constraint("DistanceY", -1, 1, 59, 2, 15.015579),
    Sketcher.Constraint("DistanceY", -1, 1, 63, 2, 21.919288),
    Sketcher.Constraint("DistanceY", -1, 1, 64, 2, 21.116789),
    Sketcher.Constraint("DistanceY", -1, 1, 65, 2, 22.782589),
    Sketcher.Constraint("DistanceX", -1, 1, 67, 2, 7.83907),
    Sketcher.Constraint("DistanceX", -1, 1, 68, 2, 6.041661),
    Sketcher.Constraint("DistanceY", -1, 1, 70, 2, 27.281528),
    Sketcher.Constraint("Distance", 6, 2.346352),
    Sketcher.Constraint("Distance", 28, 2.346352),
    Sketcher.Constraint("Distance", 42, 2.346352),
    Sketcher.Constraint("Distance", 64, 2.346352),
    Sketcher.Constraint("DistanceY", 5, 3, -1, 1, 0.000154),
    Sketcher.Constraint("DistanceY", -1, 1, 29, 3, 0.000154),
    Sketcher.Constraint("DistanceY", -1, 1, 41, 3, 0.000154),
    Sketcher.Constraint("DistanceY", 65, 3, -1, 1, 0.000154),
    Sketcher.Constraint("DistanceX", 3, 2, -1, 1, 10.822594),
    Sketcher.Constraint("DistanceX", 7, 2, -1, 1, 18.752324),
    Sketcher.Constraint("DistanceX", 8, 2, -1, 1, 18.344884),
    Sketcher.Constraint("DistanceX", 25, 2, -1, 1, 18.344884),
    Sketcher.Constraint("DistanceY", 25, 2, -1, 1, 17.567733),
    Sketcher.Constraint("DistanceX", 26, 2, -1, 1, 18.752324),
    Sketcher.Constraint("DistanceX", 30, 2, -1, 1, 10.822594),
    Sketcher.Constraint("DistanceX", 33, 2, -1, 1, 2.760676),
    Sketcher.Constraint("DistanceX", -1, 1, 39, 2, 10.822594),
    Sketcher.Constraint("DistanceX", -1, 1, 43, 2, 18.752324),
    Sketcher.Constraint("DistanceX", -1, 1, 44, 2, 18.344884),
    Sketcher.Constraint("DistanceX", -1, 1, 61, 2, 18.344884),
    Sketcher.Constraint("DistanceY", -1, 1, 61, 2, 17.567733),
    Sketcher.Constraint("DistanceX", -1, 1, 62, 2, 18.752324),
    Sketcher.Constraint("DistanceX", -1, 1, 66, 2, 10.822594),
    Sketcher.Constraint("DistanceX", -1, 1, 69, 2, 2.760676),
])
pad1 = body.newObject("PartDesign::Pad", "Pad")
pad1.Profile = sketch1
pad1.Length = Q("1 in")

doc.recompute()
